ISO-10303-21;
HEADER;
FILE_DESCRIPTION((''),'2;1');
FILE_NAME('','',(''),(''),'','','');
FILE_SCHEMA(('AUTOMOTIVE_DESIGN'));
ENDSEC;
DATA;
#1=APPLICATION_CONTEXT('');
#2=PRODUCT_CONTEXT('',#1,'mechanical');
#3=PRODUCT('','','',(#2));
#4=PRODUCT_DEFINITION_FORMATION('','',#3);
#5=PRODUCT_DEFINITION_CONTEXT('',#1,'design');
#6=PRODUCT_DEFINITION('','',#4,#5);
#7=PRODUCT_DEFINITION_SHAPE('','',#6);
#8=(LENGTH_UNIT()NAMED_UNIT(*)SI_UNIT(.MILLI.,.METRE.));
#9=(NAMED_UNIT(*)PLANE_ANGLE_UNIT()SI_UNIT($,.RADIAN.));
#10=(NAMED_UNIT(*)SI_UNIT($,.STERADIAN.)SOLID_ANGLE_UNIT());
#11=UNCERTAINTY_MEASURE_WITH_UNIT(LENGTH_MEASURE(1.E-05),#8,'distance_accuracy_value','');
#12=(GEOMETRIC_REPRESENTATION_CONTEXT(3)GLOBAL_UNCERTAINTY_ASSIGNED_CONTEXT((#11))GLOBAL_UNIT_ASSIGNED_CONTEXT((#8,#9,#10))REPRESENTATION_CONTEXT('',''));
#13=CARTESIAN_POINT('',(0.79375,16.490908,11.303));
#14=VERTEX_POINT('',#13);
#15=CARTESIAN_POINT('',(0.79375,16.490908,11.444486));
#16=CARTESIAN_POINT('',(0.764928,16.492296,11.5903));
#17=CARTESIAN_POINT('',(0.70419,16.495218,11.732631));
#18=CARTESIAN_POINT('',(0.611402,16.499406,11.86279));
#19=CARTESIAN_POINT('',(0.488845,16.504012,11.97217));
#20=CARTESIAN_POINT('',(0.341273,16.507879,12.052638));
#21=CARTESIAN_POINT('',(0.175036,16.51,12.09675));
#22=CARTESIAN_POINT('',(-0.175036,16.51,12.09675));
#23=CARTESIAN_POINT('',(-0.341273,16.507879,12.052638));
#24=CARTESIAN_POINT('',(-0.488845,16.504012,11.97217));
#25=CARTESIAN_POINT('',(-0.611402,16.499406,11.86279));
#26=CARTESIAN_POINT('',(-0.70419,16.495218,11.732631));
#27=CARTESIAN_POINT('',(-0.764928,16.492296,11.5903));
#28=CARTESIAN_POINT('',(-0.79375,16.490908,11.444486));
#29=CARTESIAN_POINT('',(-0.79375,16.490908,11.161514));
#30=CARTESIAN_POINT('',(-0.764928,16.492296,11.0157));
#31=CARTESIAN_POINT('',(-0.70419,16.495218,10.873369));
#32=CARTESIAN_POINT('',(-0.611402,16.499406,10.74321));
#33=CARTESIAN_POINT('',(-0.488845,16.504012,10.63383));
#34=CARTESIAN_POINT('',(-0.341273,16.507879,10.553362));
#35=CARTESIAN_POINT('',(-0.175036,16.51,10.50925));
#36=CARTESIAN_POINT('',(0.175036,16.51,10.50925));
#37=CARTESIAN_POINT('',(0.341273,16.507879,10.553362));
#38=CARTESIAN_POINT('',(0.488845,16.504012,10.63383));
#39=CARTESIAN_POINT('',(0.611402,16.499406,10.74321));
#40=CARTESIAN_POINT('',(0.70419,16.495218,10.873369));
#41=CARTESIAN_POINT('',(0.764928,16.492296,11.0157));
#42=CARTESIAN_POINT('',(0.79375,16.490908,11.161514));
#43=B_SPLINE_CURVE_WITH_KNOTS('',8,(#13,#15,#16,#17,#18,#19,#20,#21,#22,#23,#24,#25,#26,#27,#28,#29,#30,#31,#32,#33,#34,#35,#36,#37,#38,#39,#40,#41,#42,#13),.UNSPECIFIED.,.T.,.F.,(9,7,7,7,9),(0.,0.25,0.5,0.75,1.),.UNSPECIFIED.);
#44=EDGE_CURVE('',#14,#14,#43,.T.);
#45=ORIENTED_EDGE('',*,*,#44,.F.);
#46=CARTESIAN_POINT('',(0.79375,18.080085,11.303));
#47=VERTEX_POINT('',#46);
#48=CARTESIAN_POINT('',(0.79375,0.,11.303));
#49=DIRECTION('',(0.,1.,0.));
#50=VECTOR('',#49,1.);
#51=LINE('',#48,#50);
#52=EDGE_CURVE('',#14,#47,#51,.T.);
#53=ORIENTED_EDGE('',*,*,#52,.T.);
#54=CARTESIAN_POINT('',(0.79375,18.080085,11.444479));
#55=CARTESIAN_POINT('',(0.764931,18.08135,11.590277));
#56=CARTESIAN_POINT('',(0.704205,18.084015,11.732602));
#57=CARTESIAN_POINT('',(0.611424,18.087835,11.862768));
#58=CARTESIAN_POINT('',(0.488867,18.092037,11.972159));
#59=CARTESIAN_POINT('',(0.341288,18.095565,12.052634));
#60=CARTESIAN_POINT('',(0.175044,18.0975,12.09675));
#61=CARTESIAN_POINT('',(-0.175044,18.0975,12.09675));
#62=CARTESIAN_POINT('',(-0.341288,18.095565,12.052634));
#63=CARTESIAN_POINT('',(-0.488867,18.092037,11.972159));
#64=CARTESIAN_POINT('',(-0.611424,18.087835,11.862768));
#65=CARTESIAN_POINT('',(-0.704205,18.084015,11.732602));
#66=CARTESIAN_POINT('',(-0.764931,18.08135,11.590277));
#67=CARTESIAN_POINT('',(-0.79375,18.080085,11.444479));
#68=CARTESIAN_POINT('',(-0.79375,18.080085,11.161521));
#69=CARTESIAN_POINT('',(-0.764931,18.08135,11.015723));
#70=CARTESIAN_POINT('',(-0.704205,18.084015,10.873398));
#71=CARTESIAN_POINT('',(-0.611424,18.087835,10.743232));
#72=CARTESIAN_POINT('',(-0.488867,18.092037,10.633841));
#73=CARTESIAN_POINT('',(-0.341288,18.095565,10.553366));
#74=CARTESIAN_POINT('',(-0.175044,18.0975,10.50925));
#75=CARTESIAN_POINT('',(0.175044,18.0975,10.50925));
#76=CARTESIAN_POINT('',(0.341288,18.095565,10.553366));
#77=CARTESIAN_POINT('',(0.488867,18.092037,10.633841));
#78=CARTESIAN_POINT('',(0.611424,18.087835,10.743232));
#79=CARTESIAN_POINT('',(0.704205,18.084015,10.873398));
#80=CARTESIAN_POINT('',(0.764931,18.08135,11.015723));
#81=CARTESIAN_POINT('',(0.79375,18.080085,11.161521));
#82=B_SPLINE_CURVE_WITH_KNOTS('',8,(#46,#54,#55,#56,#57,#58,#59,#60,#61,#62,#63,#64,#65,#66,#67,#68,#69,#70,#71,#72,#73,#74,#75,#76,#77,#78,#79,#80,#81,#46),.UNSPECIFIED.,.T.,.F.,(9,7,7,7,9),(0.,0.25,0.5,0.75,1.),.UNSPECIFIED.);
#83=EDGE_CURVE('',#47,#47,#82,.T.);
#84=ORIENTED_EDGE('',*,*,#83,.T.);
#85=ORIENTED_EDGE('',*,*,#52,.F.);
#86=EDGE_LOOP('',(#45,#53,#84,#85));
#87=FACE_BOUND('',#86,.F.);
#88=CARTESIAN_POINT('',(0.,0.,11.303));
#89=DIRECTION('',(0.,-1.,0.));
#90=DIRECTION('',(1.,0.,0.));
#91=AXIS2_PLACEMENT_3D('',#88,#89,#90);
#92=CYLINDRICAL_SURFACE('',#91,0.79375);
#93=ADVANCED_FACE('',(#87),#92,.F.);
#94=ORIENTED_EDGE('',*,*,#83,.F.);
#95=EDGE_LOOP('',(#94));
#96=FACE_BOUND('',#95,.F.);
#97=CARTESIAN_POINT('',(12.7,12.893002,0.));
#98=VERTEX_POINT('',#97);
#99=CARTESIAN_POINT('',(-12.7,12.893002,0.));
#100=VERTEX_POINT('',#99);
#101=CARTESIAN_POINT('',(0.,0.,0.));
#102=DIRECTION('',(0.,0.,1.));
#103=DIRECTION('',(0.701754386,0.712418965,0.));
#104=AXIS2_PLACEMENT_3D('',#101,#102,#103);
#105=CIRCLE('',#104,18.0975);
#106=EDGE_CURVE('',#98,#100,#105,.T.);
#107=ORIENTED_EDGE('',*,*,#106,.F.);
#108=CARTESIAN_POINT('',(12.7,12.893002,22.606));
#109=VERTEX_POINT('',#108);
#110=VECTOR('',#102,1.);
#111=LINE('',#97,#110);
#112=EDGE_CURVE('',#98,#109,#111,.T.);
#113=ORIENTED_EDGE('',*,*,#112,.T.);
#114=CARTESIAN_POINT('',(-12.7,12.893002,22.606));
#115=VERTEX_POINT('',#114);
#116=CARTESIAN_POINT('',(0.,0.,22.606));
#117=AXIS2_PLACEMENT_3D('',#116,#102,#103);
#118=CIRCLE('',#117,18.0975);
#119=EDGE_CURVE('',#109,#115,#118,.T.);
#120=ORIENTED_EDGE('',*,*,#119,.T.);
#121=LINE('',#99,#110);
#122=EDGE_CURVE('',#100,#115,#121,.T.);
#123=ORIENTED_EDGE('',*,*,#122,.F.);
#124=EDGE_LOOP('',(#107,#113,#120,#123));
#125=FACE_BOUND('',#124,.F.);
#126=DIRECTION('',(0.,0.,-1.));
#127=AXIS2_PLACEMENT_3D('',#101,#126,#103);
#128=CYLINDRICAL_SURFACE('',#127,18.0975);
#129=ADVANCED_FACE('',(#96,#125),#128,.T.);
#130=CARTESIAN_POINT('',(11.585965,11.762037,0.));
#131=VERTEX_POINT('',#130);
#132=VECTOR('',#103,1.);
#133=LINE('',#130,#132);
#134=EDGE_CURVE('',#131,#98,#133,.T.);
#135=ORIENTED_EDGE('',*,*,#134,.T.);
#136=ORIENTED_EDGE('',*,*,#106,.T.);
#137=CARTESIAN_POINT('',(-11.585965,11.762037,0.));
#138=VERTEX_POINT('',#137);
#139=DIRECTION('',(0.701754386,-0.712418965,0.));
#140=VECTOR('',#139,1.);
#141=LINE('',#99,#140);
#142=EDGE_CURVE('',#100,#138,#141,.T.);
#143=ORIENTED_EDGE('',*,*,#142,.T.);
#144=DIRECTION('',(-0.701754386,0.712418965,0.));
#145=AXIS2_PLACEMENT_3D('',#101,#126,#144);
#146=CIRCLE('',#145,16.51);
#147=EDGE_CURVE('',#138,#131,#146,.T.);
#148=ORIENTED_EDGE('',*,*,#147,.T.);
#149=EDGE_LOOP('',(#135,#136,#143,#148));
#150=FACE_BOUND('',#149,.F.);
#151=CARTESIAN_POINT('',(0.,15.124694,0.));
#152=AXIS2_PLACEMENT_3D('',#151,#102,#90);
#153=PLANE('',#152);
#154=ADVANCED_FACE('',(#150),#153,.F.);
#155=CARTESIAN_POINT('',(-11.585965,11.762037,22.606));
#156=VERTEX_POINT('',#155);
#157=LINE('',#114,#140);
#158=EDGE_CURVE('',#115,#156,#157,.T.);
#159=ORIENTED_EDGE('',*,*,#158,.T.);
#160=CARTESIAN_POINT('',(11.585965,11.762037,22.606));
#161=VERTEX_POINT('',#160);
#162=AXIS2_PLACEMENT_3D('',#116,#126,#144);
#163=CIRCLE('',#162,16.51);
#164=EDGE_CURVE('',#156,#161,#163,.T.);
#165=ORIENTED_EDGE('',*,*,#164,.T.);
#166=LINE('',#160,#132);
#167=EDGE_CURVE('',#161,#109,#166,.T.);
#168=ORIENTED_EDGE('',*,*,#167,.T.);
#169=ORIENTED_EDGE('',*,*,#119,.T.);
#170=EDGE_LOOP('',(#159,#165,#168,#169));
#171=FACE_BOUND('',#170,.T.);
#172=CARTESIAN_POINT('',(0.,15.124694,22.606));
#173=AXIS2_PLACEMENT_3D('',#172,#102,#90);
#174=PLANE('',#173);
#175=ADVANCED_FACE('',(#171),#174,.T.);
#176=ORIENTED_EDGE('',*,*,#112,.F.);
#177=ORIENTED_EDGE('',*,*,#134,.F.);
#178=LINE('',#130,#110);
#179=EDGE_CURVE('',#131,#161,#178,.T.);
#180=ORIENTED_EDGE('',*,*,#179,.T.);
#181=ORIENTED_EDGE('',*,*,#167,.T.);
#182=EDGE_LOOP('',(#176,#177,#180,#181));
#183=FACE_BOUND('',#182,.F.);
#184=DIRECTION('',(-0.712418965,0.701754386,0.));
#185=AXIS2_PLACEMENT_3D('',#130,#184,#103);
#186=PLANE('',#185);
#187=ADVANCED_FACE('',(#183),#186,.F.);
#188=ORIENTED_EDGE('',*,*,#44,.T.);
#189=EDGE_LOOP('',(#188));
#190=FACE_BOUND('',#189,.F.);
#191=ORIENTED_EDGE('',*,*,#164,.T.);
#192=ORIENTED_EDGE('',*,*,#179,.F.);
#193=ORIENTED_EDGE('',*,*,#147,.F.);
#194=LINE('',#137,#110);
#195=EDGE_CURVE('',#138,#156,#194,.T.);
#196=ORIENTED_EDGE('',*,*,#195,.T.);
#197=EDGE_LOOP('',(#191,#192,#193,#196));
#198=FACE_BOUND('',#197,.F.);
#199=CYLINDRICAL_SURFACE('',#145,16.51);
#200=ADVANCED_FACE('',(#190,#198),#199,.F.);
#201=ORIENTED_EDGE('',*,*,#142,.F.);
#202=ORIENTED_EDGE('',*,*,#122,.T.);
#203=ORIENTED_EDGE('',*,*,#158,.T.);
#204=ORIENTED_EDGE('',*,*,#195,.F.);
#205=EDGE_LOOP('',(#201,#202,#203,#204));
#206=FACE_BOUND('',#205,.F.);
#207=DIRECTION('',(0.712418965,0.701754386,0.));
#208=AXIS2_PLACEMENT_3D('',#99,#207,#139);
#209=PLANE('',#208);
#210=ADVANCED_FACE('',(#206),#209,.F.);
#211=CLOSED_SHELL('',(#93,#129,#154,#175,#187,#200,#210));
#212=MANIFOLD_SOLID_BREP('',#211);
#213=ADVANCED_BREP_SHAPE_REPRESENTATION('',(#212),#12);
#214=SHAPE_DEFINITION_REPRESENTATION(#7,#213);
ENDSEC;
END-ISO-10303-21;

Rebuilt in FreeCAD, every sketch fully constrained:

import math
import FreeCAD as App
import Part
import Sketcher
from FreeCAD import Vector
Q = App.Units.Quantity

doc = App.newDocument("Part")
params = doc.addObject("Spreadsheet::Sheet", "Params")
for row, (alias, value) in enumerate([
    ("sketch1_radius", "0.65 in"),
    ("pad1_length", "0.89 in"),
    ("sketch2_diameter", "0.0625 in"),
    ("pocket1_length", "19.0975 mm"),
], start=1):
    params.set(f"A{row}", alias)
    params.set(f"B{row}", "=" + value)
    params.setAlias(f"B{row}", alias)

body = doc.addObject("PartDesign::Body", "Body")

sketch1 = doc.addObject("Sketcher::SketchObject", "Sketch")
body.addObject(sketch1)
sketch1.AttachmentSupport = (doc.XY_Plane, [""])
sketch1.MapMode = "FlatFace"
sketch1.addGeometry([
    Part.ArcOfCircle(Part.Circle(Vector(0, 0, 0), Vector(0, 0, 1), 16.51), math.radians(45.432071), math.radians(134.567929)),
    Part.LineSegment(Vector(11.585965, 11.762037, 0), Vector(12.7, 12.893002, 0)),
    Part.ArcOfCircle(Part.Circle(Vector(0, 0, 0), Vector(0, 0, 1), 18.0975), math.radians(45.432071), math.radians(134.567929)),
    Part.LineSegment(Vector(-12.7, 12.893002, 0), Vector(-11.585965, 11.762037, 0)),
], False)
sketch1.addConstraint([
    Sketcher.Constraint("Coincident", 0, 1, 1, 1),
    Sketcher.Constraint("Coincident", 1, 2, 2, 1),
    Sketcher.Constraint("Coincident", 2, 2, 3, 1),
    Sketcher.Constraint("Coincident", 3, 2, 0, 2),
    Sketcher.Constraint("Coincident", 0, 3, -1, 1),
    Sketcher.Constraint("Coincident", 2, 3, -1, 1),
    Sketcher.Constraint("Horizontal", 1, 2, 2, 2),
    Sketcher.Constraint("Horizontal", 0, 1, 3, 2),
    Sketcher.Constraint("Radius", 0, Q("0.65 in")),
    Sketcher.Constraint("DistanceX", 2, 2, 1, 2, Q("1 in")),
    Sketcher.Constraint("Radius", 2, Q("0.7125 in")),
    Sketcher.Constraint("DistanceX", 3, 2, 0, 1, Q("23.17193 mm")),
])
sketch1.setExpression("Constraints[8]", "Params.sketch1_radius")
pad1 = doc.addObject("PartDesign::Pad", "Pad")
body.addObject(pad1)
pad1.Profile = sketch1
pad1.setExpression("Length", "Params.pad1_length")

sketch2 = doc.addObject("Sketcher::SketchObject", "Sketch001")
body.addObject(sketch2)
sketch2.AttachmentSupport = (doc.XZ_Plane, [""])
sketch2.MapMode = "FlatFace"
sketch2.addGeometry(Part.Circle(Vector(0, 11.303, 0), Vector(0, 0, 1), 0.79375), False)
sketch2.addConstraint([
    Sketcher.Constraint("PointOnObject", 0, 3, -2),
    Sketcher.Constraint("Diameter", 0, Q("0.0625 in")),
    Sketcher.Constraint("DistanceY", -1, 1, 0, 3, Q("0.445 in")),
])
sketch2.setExpression("Constraints[1]", "Params.sketch2_diameter")
pocket1 = doc.addObject("PartDesign::Pocket", "Pocket")
body.addObject(pocket1)
pocket1.Profile = sketch2
pocket1.setExpression("Length", "Params.pocket1_length")

doc.recompute()
